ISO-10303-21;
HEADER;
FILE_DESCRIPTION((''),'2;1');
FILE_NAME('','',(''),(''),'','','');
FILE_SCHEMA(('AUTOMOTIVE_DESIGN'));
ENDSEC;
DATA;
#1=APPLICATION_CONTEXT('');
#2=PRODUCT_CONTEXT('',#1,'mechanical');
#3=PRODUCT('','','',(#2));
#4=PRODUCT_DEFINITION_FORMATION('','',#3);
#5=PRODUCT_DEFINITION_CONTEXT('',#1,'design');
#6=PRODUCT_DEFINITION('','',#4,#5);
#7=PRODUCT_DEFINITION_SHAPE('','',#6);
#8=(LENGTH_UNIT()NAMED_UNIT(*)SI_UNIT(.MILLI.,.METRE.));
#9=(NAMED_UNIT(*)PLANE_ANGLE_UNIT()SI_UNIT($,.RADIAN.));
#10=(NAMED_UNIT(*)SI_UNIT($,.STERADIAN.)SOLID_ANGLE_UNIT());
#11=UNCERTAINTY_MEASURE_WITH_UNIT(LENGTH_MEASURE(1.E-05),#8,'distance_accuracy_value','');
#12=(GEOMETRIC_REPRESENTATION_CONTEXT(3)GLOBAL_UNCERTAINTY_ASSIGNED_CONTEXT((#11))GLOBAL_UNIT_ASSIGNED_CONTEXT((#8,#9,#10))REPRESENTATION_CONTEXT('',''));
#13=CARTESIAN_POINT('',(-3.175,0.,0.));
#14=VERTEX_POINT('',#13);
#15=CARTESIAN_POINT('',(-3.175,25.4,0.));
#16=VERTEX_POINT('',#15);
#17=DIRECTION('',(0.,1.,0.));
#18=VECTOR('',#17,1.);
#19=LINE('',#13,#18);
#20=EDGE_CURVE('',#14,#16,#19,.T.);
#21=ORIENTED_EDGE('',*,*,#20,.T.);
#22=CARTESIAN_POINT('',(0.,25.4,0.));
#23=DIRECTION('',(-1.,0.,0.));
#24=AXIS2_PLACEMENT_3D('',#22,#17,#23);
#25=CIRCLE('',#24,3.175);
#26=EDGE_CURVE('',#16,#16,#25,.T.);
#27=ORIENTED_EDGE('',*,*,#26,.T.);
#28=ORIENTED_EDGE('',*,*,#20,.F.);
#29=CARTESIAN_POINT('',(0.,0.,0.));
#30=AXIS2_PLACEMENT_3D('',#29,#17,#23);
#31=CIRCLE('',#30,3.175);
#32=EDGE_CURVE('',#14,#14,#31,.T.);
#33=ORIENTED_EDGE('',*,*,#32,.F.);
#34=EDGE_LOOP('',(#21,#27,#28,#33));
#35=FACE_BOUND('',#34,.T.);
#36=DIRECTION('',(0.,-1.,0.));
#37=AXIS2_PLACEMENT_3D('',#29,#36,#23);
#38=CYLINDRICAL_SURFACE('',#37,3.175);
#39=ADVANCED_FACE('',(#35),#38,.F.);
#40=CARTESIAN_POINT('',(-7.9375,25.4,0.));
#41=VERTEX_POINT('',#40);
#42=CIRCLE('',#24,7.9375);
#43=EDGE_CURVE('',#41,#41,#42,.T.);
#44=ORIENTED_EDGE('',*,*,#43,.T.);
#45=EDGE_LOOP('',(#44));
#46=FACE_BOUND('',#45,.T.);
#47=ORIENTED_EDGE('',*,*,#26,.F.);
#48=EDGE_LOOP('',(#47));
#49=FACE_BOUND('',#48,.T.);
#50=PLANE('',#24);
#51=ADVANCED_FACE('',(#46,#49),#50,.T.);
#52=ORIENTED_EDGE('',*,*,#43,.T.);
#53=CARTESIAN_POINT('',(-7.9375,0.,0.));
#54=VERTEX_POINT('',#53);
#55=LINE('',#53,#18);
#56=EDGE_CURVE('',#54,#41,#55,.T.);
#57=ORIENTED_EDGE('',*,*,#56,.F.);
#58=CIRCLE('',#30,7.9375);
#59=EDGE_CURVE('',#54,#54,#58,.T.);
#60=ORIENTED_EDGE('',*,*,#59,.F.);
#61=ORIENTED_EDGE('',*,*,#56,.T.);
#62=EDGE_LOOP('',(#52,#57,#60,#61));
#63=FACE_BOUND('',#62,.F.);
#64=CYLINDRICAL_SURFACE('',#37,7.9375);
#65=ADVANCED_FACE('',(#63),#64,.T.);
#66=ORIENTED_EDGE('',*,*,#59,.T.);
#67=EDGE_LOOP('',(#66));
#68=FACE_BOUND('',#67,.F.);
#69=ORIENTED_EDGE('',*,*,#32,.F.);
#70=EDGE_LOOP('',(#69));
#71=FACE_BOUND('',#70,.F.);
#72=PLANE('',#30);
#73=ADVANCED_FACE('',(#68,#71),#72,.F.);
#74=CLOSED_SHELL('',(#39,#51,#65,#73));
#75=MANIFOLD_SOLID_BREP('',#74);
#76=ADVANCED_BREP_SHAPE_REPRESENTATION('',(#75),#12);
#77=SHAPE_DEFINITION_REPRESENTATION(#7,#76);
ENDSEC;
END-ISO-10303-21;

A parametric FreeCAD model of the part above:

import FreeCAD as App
import Part
import Sketcher
Q = App.Units.Quantity

doc = App.newDocument("Part")
body = doc.addObject("PartDesign::Body", "Body")

sketch1 = body.newObject("Sketcher::SketchObject", "Sketch")
sketch1.AttachmentSupport = (doc.getObject("XZ_Plane"), [""])
sketch1.MapMode = "FlatFace"
sketch1.addGeometry([
    Part.Circle(App.Vector(0, 0, 0), App.Vector(0, 0, 1), 7.9),
    Part.Circle(App.Vector(0, 0, 0), App.Vector(0, 0, 1), 3.2),
], False)
sketch1.addConstraint([
    Sketcher.Constraint("Coincident", 0, 3, -1, 1),
    Sketcher.Constraint("Coincident", 1, 3, -1, 1),
    Sketcher.Constraint("Diameter", 1, Q("0.25 in")),
    Sketcher.Constraint("Diameter", 0, Q("0.625 in")),
])
pad1 = body.newObject("PartDesign::Pad", "Pad")
pad1.Profile = sketch1
pad1.Length = Q("1 in")
pad1.Reversed = True

doc.recompute()
